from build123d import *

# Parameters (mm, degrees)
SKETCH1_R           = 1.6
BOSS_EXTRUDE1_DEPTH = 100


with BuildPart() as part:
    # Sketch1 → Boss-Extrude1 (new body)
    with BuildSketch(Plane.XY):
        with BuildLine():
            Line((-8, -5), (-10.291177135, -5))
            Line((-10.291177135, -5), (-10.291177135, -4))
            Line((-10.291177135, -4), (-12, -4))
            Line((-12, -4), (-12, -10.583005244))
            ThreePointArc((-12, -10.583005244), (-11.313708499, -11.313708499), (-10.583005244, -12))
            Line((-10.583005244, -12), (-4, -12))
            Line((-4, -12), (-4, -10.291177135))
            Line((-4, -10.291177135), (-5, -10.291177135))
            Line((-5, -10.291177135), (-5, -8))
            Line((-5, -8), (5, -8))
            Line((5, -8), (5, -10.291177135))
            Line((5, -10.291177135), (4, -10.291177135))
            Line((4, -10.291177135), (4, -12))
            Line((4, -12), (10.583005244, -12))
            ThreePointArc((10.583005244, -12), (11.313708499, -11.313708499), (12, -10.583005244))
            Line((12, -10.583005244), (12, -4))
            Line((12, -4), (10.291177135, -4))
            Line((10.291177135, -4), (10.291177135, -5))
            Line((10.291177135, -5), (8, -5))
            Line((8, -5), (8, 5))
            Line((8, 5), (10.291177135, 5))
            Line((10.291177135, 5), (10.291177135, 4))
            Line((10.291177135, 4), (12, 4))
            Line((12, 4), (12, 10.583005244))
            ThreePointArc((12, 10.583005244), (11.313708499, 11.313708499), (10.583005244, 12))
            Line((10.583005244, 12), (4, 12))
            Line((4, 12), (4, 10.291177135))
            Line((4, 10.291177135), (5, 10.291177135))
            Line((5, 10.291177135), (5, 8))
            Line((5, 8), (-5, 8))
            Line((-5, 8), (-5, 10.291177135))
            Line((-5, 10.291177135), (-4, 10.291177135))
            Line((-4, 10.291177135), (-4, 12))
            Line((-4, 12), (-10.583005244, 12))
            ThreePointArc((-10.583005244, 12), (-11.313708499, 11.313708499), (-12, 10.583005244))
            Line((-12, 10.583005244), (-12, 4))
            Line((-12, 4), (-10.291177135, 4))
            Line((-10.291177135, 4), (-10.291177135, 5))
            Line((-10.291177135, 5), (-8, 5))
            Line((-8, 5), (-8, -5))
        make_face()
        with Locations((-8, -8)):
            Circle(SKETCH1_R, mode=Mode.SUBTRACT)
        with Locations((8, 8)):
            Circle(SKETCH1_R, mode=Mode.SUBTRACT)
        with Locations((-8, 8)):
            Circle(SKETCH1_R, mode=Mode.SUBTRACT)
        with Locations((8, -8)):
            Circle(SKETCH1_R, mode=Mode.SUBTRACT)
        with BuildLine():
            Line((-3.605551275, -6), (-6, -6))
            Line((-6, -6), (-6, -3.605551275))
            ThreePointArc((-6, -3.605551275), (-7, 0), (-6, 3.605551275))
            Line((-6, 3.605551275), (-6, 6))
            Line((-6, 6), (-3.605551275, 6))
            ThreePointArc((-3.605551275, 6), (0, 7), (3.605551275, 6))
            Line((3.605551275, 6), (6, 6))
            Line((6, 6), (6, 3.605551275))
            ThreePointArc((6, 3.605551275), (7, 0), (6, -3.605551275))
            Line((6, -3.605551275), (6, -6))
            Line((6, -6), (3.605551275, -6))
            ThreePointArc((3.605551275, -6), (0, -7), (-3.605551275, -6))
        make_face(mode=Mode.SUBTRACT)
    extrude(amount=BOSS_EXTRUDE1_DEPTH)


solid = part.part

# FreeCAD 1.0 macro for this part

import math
import FreeCAD as App
import Part
import Sketcher
Q = App.Units.Quantity

doc = App.newDocument("Part")
params = doc.addObject("Spreadsheet::Sheet", "Params")
for row, (alias, value) in enumerate([
    ("sketch1_radius", "16 mm"),
    ("sketch1_radius2", "7 mm"),
    ("sketch1_diameter", "3.2 mm"),
    ("sketch1_width", "1 mm"),
    ("sketch1_width2", "10 mm"),
    ("pad1_length", "100 mm"),
], start=1):
    params.set(f"A{row}", alias)
    params.set(f"B{row}", "=" + value)
    params.setAlias(f"B{row}", alias)

body = doc.addObject("PartDesign::Body", "Body")

# Sketch on XY plane
sketch1 = doc.addObject("Sketcher::SketchObject", "Sketch")
body.addObject(sketch1)
sketch1.AttachmentSupport = (doc.XY_Plane, [""])
sketch1.MapMode = "FlatFace"
sketch1.addGeometry([
    Part.LineSegment(App.Vector(-8, -5, 0), App.Vector(-10.3, -5, 0)),  # 0
    Part.LineSegment(App.Vector(-10.3, -5, 0), App.Vector(-10.3, -4, 0)),  # 1
    Part.LineSegment(App.Vector(-10.3, -4, 0), App.Vector(-12, -4, 0)),  # 2
    Part.LineSegment(App.Vector(-12, -4, 0), App.Vector(-12, -10.6, 0)),  # 3
    Part.ArcOfCircle(Part.Circle(App.Vector(0, 0, 0), App.Vector(0, 0, 1), 16), math.radians(-138.59), math.radians(-131.41)),  # 4
    Part.LineSegment(App.Vector(-10.6, -12, 0), App.Vector(-4, -12, 0)),  # 5
    Part.LineSegment(App.Vector(-4, -12, 0), App.Vector(-4, -10.3, 0)),  # 6
    Part.LineSegment(App.Vector(-4, -10.3, 0), App.Vector(-5, -10.3, 0)),  # 7
    Part.LineSegment(App.Vector(-5, -10.3, 0), App.Vector(-5, -8, 0)),  # 8
    Part.LineSegment(App.Vector(-5, -8, 0), App.Vector(5, -8, 0)),  # 9
    Part.LineSegment(App.Vector(5, -8, 0), App.Vector(5, -10.3, 0)),  # 10
    Part.LineSegment(App.Vector(5, -10.3, 0), App.Vector(4, -10.3, 0)),  # 11
    Part.LineSegment(App.Vector(4, -10.3, 0), App.Vector(4, -12, 0)),  # 12
    Part.LineSegment(App.Vector(4, -12, 0), App.Vector(10.6, -12, 0)),  # 13
    Part.ArcOfCircle(Part.Circle(App.Vector(0, 0, 0), App.Vector(0, 0, 1), 16), math.radians(-48.59), math.radians(-41.41)),  # 14
    Part.LineSegment(App.Vector(12, -10.6, 0), App.Vector(12, -4, 0)),  # 15
    Part.LineSegment(App.Vector(12, -4, 0), App.Vector(10.3, -4, 0)),  # 16
    Part.LineSegment(App.Vector(10.3, -4, 0), App.Vector(10.3, -5, 0)),  # 17
    Part.LineSegment(App.Vector(10.3, -5, 0), App.Vector(8, -5, 0)),  # 18
    Part.LineSegment(App.Vector(8, -5, 0), App.Vector(8, 5, 0)),  # 19
    Part.LineSegment(App.Vector(8, 5, 0), App.Vector(10.3, 5, 0)),  # 20
    Part.LineSegment(App.Vector(10.3, 5, 0), App.Vector(10.3, 4, 0)),  # 21
    Part.LineSegment(App.Vector(10.3, 4, 0), App.Vector(12, 4, 0)),  # 22
    Part.LineSegment(App.Vector(12, 4, 0), App.Vector(12, 10.6, 0)),  # 23
    Part.ArcOfCircle(Part.Circle(App.Vector(0, 0, 0), App.Vector(0, 0, 1), 16), math.radians(41.41), math.radians(48.59)),  # 24
    Part.LineSegment(App.Vector(10.6, 12, 0), App.Vector(4, 12, 0)),  # 25
    Part.LineSegment(App.Vector(4, 12, 0), App.Vector(4, 10.3, 0)),  # 26
    Part.LineSegment(App.Vector(4, 10.3, 0), App.Vector(5, 10.3, 0)),  # 27
    Part.LineSegment(App.Vector(5, 10.3, 0), App.Vector(5, 8, 0)),  # 28
    Part.LineSegment(App.Vector(5, 8, 0), App.Vector(-5, 8, 0)),  # 29
    Part.LineSegment(App.Vector(-5, 8, 0), App.Vector(-5, 10.3, 0)),  # 30
    Part.LineSegment(App.Vector(-5, 10.3, 0), App.Vector(-4, 10.3, 0)),  # 31
    Part.LineSegment(App.Vector(-4, 10.3, 0), App.Vector(-4, 12, 0)),  # 32
    Part.LineSegment(App.Vector(-4, 12, 0), App.Vector(-10.6, 12, 0)),  # 33
    Part.ArcOfCircle(Part.Circle(App.Vector(0, 0, 0), App.Vector(0, 0, 1), 16), math.radians(131.41), math.radians(138.59)),  # 34
    Part.LineSegment(App.Vector(-12, 10.6, 0), App.Vector(-12, 4, 0)),  # 35
    Part.LineSegment(App.Vector(-12, 4, 0), App.Vector(-10.3, 4, 0)),  # 36
    Part.LineSegment(App.Vector(-10.3, 4, 0), App.Vector(-10.3, 5, 0)),  # 37
    Part.LineSegment(App.Vector(-10.3, 5, 0), App.Vector(-8, 5, 0)),  # 38
    Part.LineSegment(App.Vector(-8, 5, 0), App.Vector(-8, -5, 0)),  # 39
    Part.Circle(App.Vector(-8, -8, 0), App.Vector(0, 0, 1), 1.6),  # 40
    Part.Circle(App.Vector(8, -8, 0), App.Vector(0, 0, 1), 1.6),  # 41
    Part.Circle(App.Vector(-8, 8, 0), App.Vector(0, 0, 1), 1.6),  # 42
    Part.ArcOfCircle(Part.Circle(App.Vector(0, 0, 0), App.Vector(0, 0, 1), 7), math.radians(-121), math.radians(-59)),  # 43
    Part.LineSegment(App.Vector(-3.6, -6, 0), App.Vector(-6, -6, 0)),  # 44
    Part.LineSegment(App.Vector(-6, -6, 0), App.Vector(-6, -3.6, 0)),  # 45
    Part.ArcOfCircle(Part.Circle(App.Vector(0, 0, 0), App.Vector(0, 0, 1), 7), math.radians(149), math.radians(211)),  # 46
    Part.LineSegment(App.Vector(-6, 3.6, 0), App.Vector(-6, 6, 0)),  # 47
    Part.LineSegment(App.Vector(-6, 6, 0), App.Vector(-3.6, 6, 0)),  # 48
    Part.ArcOfCircle(Part.Circle(App.Vector(0, 0, 0), App.Vector(0, 0, 1), 7), math.radians(59), math.radians(121)),  # 49
    Part.LineSegment(App.Vector(3.6, 6, 0), App.Vector(6, 6, 0)),  # 50
    Part.LineSegment(App.Vector(6, 6, 0), App.Vector(6, 3.6, 0)),  # 51
    Part.ArcOfCircle(Part.Circle(App.Vector(0, 0, 0), App.Vector(0, 0, 1), 7), math.radians(-31), math.radians(31)),  # 52
    Part.LineSegment(App.Vector(6, -3.6, 0), App.Vector(6, -6, 0)),  # 53
    Part.LineSegment(App.Vector(6, -6, 0), App.Vector(3.6, -6, 0)),  # 54
    Part.Circle(App.Vector(8, 8, 0), App.Vector(0, 0, 1), 1.6),  # 55
], False)
sketch1.addConstraint([
    Sketcher.Constraint("Coincident", 0, 2, 1, 1),
    Sketcher.Constraint("Coincident", 1, 2, 2, 1),
    Sketcher.Constraint("Coincident", 2, 2, 3, 1),
    Sketcher.Constraint("Coincident", 3, 2, 4, 1),
    Sketcher.Constraint("Coincident", 4, 2, 5, 1),
    Sketcher.Constraint("Coincident", 5, 2, 6, 1),
    Sketcher.Constraint("Coincident", 6, 2, 7, 1),
    Sketcher.Constraint("Coincident", 7, 2, 8, 1),
    Sketcher.Constraint("Coincident", 8, 2, 9, 1),
    Sketcher.Constraint("Coincident", 9, 2, 10, 1),
    Sketcher.Constraint("Coincident", 10, 2, 11, 1),
    Sketcher.Constraint("Coincident", 11, 2, 12, 1),
    Sketcher.Constraint("Coincident", 12, 2, 13, 1),
    Sketcher.Constraint("Coincident", 13, 2, 14, 1),
    Sketcher.Constraint("Coincident", 14, 2, 15, 1),
    Sketcher.Constraint("Coincident", 15, 2, 16, 1),
    Sketcher.Constraint("Coincident", 16, 2, 17, 1),
    Sketcher.Constraint("Coincident", 17, 2, 18, 1),
    Sketcher.Constraint("Coincident", 18, 2, 19, 1),
    Sketcher.Constraint("Coincident", 19, 2, 20, 1),
    Sketcher.Constraint("Coincident", 20, 2, 21, 1),
    Sketcher.Constraint("Coincident", 21, 2, 22, 1),
    Sketcher.Constraint("Coincident", 22, 2, 23, 1),
    Sketcher.Constraint("Coincident", 23, 2, 24, 1),
    Sketcher.Constraint("Coincident", 24, 2, 25, 1),
    Sketcher.Constraint("Coincident", 25, 2, 26, 1),
    Sketcher.Constraint("Coincident", 26, 2, 27, 1),
    Sketcher.Constraint("Coincident", 27, 2, 28, 1),
    Sketcher.Constraint("Coincident", 28, 2, 29, 1),
    Sketcher.Constraint("Coincident", 29, 2, 30, 1),
    Sketcher.Constraint("Coincident", 30, 2, 31, 1),
    Sketcher.Constraint("Coincident", 31, 2, 32, 1),
    Sketcher.Constraint("Coincident", 32, 2, 33, 1),
    Sketcher.Constraint("Coincident", 33, 2, 34, 1),
    Sketcher.Constraint("Coincident", 34, 2, 35, 1),
    Sketcher.Constraint("Coincident", 35, 2, 36, 1),
    Sketcher.Constraint("Coincident", 36, 2, 37, 1),
    Sketcher.Constraint("Coincident", 37, 2, 38, 1),
    Sketcher.Constraint("Coincident", 38, 2, 39, 1),
    Sketcher.Constraint("Coincident", 39, 2, 0, 1),
    Sketcher.Constraint("Coincident", 43, 1, 44, 1),
    Sketcher.Constraint("Coincident", 44, 2, 45, 1),
    Sketcher.Constraint("Coincident", 45, 2, 46, 2),
    Sketcher.Constraint("Coincident", 46, 1, 47, 1),
    Sketcher.Constraint("Coincident", 47, 2, 48, 1),
    Sketcher.Constraint("Coincident", 48, 2, 49, 2),
    Sketcher.Constraint("Coincident", 49, 1, 50, 1),
    Sketcher.Constraint("Coincident", 50, 2, 51, 1),
    Sketcher.Constraint("Coincident", 51, 2, 52, 2),
    Sketcher.Constraint("Coincident", 52, 1, 53, 1),
    Sketcher.Constraint("Coincident", 53, 2, 54, 1),
    Sketcher.Constraint("Coincident", 54, 2, 43, 2),
    Sketcher.Constraint("Horizontal", 0),
    Sketcher.Constraint("Vertical", 1),
    Sketcher.Constraint("Horizontal", 2),
    Sketcher.Constraint("Vertical", 3),
    Sketcher.Constraint("Horizontal", 5),
    Sketcher.Constraint("Vertical", 6),
    Sketcher.Constraint("Horizontal", 7),
    Sketcher.Constraint("Vertical", 8),
    Sketcher.Constraint("Horizontal", 9),
    Sketcher.Constraint("Vertical", 10),
    Sketcher.Constraint("Horizontal", 11),
    Sketcher.Constraint("Vertical", 12),
    Sketcher.Constraint("Horizontal", 13),
    Sketcher.Constraint("Vertical", 15),
    Sketcher.Constraint("Horizontal", 16),
    Sketcher.Constraint("Vertical", 17),
    Sketcher.Constraint("Horizontal", 18),
    Sketcher.Constraint("Vertical", 19),
    Sketcher.Constraint("Horizontal", 20),
    Sketcher.Constraint("Vertical", 21),
    Sketcher.Constraint("Horizontal", 22),
    Sketcher.Constraint("Vertical", 23),
    Sketcher.Constraint("Horizontal", 25),
    Sketcher.Constraint("Vertical", 26),
    Sketcher.Constraint("Horizontal", 27),
    Sketcher.Constraint("Vertical", 28),
    Sketcher.Constraint("Horizontal", 29),
    Sketcher.Constraint("Vertical", 30),
    Sketcher.Constraint("Horizontal", 31),
    Sketcher.Constraint("Vertical", 32),
    Sketcher.Constraint("Horizontal", 33),
    Sketcher.Constraint("Vertical", 35),
    Sketcher.Constraint("Horizontal", 36),
    Sketcher.Constraint("Vertical", 37),
    Sketcher.Constraint("Horizontal", 38),
    Sketcher.Constraint("Vertical", 39),
    Sketcher.Constraint("Horizontal", 44),
    Sketcher.Constraint("Vertical", 45),
    Sketcher.Constraint("Vertical", 47),
    Sketcher.Constraint("Horizontal", 48),
    Sketcher.Constraint("Horizontal", 50),
    Sketcher.Constraint("Vertical", 51),
    Sketcher.Constraint("Vertical", 53),
    Sketcher.Constraint("Horizontal", 54),
    Sketcher.Constraint("Coincident", 4, 3, -1, 1),
    Sketcher.Constraint("Coincident", 14, 3, -1, 1),
    Sketcher.Constraint("Coincident", 24, 3, -1, 1),
    Sketcher.Constraint("Coincident", 34, 3, -1, 1),
    Sketcher.Constraint("Coincident", 43, 3, -1, 1),
    Sketcher.Constraint("Coincident", 46, 3, -1, 1),
    Sketcher.Constraint("Coincident", 49, 3, -1, 1),
    Sketcher.Constraint("Coincident", 52, 3, -1, 1),
    Sketcher.Constraint("Equal", 4, 14),
    Sketcher.Constraint("Equal", 14, 24),
    Sketcher.Constraint("Equal", 24, 34),
    Sketcher.Constraint("Equal", 40, 41),
    Sketcher.Constraint("Equal", 41, 42),
    Sketcher.Constraint("Equal", 43, 46),
    Sketcher.Constraint("Equal", 46, 49),
    Sketcher.Constraint("Equal", 49, 52),
    Sketcher.Constraint("Equal", 42, 55),
    Sketcher.Constraint("Symmetric", 41, 3, 42, 3, -1, 1),
    Sketcher.Constraint("Symmetric", 40, 3, 55, 3, -1, 1),
    Sketcher.Constraint("Symmetric", 0, 2, 20, 2, -1, 1),
    Sketcher.Constraint("Symmetric", 2, 2, 22, 2, -1, 1),
    Sketcher.Constraint("Symmetric", 5, 2, 25, 2, -1, 1),
    Sketcher.Constraint("Symmetric", 7, 2, 27, 2, -1, 1),
    Sketcher.Constraint("Symmetric", 9, 2, 29, 2, -1, 1),
    Sketcher.Constraint("Symmetric", 11, 2, 31, 2, -1, 1),
    Sketcher.Constraint("Symmetric", 15, 2, 35, 2, -1, 1),
    Sketcher.Constraint("Symmetric", 17, 2, 37, 2, -1, 1),
    Sketcher.Constraint("Symmetric", 44, 2, 50, 2, -1, 1),
    Sketcher.Constraint("Symmetric", 47, 2, 53, 2, -1, 1),
    Sketcher.Constraint("Symmetric", 40, 3, 41, 3, -2),
    Sketcher.Constraint("Symmetric", 7, 2, 10, 2, -2),
    Sketcher.Constraint("Symmetric", 5, 2, 12, 2, -2),
    Sketcher.Constraint("Symmetric", 2, 2, 15, 2, -2),
    Sketcher.Constraint("Symmetric", 0, 2, 17, 2, -2),
    Sketcher.Constraint("Symmetric", 47, 2, 50, 2, -2),
    Sketcher.Constraint("Horizontal", 41, 3, 8, 2),
    Sketcher.Constraint("Horizontal", 25, 2, 32, 2),
    Sketcher.Constraint("Vertical", 55, 3, 18, 2),
    Sketcher.Constraint("Vertical", 42, 3, 38, 2),
    Sketcher.Constraint("Equal", 31, 1),
    Sketcher.Constraint("Equal", 33, 3),
    Sketcher.Constraint("Equal", 36, 6),
    Sketcher.Constraint("Equal", 38, 8),
    Sketcher.Constraint("Equal", 29, 19),
    Sketcher.Constraint("Equal", 54, 45),
    Sketcher.Constraint("Radius", 4, Q("16 mm")),
    Sketcher.Constraint("Radius", 43, Q("7 mm")),
    Sketcher.Constraint("Diameter", 40, Q("3.2 mm")),
    Sketcher.Constraint("DistanceX", 7, 2, 7, 1, Q("1 mm")),
    Sketcher.Constraint("DistanceX", 9, 1, 9, 2, Q("10 mm")),
    Sketcher.Constraint("DistanceX", 40, 3, -1, 1, Q("8 mm")),
    Sketcher.Constraint("DistanceX", 2, 2, -1, 1, Q("12 mm")),
    Sketcher.Constraint("DistanceY", 43, 1, -1, 1, Q("6 mm")),
    Sketcher.Constraint("DistanceX", 0, 2, 0, 1, Q("2.291177 mm")),
])
sketch1.setExpression("Constraints[141]", "Params.sketch1_radius")
sketch1.setExpression("Constraints[142]", "Params.sketch1_radius2")
sketch1.setExpression("Constraints[143]", "Params.sketch1_diameter")
sketch1.setExpression("Constraints[144]", "Params.sketch1_width")
sketch1.setExpression("Constraints[145]", "Params.sketch1_width2")
pad1 = doc.addObject("PartDesign::Pad", "Pad")
body.addObject(pad1)
pad1.Profile = sketch1
pad1.setExpression("Length", "Params.pad1_length")

doc.recompute()
